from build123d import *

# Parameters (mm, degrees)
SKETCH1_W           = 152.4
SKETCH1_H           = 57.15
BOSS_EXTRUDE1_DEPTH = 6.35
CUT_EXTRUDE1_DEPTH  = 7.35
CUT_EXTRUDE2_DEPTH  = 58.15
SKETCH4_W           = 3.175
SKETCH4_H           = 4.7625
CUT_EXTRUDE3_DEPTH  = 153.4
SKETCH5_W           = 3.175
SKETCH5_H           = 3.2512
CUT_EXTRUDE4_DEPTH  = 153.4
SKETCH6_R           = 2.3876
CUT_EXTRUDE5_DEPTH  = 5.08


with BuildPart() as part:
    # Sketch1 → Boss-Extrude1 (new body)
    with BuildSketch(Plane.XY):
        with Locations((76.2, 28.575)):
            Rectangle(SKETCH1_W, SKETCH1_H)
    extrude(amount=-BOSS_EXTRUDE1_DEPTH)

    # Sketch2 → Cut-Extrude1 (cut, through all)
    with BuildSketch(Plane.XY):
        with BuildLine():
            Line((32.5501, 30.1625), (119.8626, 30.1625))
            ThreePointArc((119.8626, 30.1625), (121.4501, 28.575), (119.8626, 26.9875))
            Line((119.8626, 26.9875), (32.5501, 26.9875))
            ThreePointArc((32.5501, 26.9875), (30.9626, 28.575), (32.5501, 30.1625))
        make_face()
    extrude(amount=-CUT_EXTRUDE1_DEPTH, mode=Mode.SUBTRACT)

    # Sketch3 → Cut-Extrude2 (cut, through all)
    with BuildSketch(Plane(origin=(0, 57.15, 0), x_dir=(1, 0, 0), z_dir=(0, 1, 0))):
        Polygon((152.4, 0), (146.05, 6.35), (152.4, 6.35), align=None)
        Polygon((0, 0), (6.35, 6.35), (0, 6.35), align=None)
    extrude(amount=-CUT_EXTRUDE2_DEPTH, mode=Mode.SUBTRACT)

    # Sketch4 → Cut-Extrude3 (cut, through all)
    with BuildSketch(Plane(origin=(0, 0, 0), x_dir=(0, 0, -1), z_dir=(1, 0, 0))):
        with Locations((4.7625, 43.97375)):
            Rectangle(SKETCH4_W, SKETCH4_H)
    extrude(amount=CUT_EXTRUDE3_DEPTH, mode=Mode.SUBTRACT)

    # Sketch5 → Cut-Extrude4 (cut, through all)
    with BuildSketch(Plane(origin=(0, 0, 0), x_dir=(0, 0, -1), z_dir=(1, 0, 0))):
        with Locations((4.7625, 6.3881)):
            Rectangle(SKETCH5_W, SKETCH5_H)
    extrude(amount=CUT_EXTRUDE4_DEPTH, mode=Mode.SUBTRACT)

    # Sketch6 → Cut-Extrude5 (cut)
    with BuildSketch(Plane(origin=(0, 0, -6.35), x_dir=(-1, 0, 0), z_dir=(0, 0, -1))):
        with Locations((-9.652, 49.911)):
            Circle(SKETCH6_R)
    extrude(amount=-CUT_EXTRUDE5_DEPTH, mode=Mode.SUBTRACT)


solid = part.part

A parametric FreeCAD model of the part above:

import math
import FreeCAD as App
import Part
import Sketcher
Q = App.Units.Quantity


def add_polygon(sketch, points):
    """Adds a closed chain of lines whose ends are joined by coincident constraints."""
    first, n = sketch.GeometryCount, len(points)
    for a, b in zip(points, points[1:] + points[:1]):
        sketch.addGeometry(Part.LineSegment(App.Vector(*a, 0), App.Vector(*b, 0)), False)
    for i in range(n):
        sketch.addConstraint(Sketcher.Constraint("Coincident", first + i, 2, first + (i + 1) % n, 1))

doc = App.newDocument("Part")
body = doc.addObject("PartDesign::Body", "Body")

# Sketch on XY plane
sketch1 = body.newObject("Sketcher::SketchObject", "Sketch")
sketch1.AttachmentSupport = (doc.getObject("XY_Plane"), [""])
sketch1.MapMode = "FlatFace"
add_polygon(sketch1, [(0, 57.15), (0, 0), (152.4, 0), (152.4, 57.15)])  # lines 0-3
sketch1.addConstraint([
    Sketcher.Constraint("Vertical", 0),
    Sketcher.Constraint("Horizontal", 1),
    Sketcher.Constraint("Vertical", 2),
    Sketcher.Constraint("Horizontal", 3),
    Sketcher.Constraint("Coincident", 0, 2, -1, 1),
    Sketcher.Constraint("DistanceX", 1, 1, 1, 2, Q("6 in")),
    Sketcher.Constraint("DistanceY", 0, 2, 0, 1, Q("2.25 in")),
])
pad1 = body.newObject("PartDesign::Pad", "Pad")
pad1.Profile = sketch1
pad1.Length = Q("0.25 in")
pad1.Reversed = True

# Sketch on XY plane
sketch2 = body.newObject("Sketcher::SketchObject", "Sketch001")
sketch2.AttachmentSupport = (doc.getObject("XY_Plane"), [""])
sketch2.MapMode = "FlatFace"
sketch2.addGeometry([
    Part.LineSegment(App.Vector(119.8626, 30.1625, 0), App.Vector(32.5501, 30.1625, 0)),
    Part.ArcOfCircle(Part.Circle(App.Vector(32.5501, 28.575, 0), App.Vector(0, 0, 1), 1.5875), math.radians(90), math.radians(270)),
    Part.LineSegment(App.Vector(32.5501, 26.9875, 0), App.Vector(119.8626, 26.9875, 0)),
    Part.ArcOfCircle(Part.Circle(App.Vector(119.8626, 28.575, 0), App.Vector(0, 0, 1), 1.5875), math.radians(-90), math.radians(90)),
], False)
sketch2.addConstraint([
    Sketcher.Constraint("Tangent", 0, 2, 1, 1),
    Sketcher.Constraint("Tangent", 1, 2, 2, 1),
    Sketcher.Constraint("Tangent", 2, 2, 3, 1),
    Sketcher.Constraint("Tangent", 3, 2, 0, 1),
    Sketcher.Constraint("Horizontal", 0),
    Sketcher.Constraint("Horizontal", 2),
    Sketcher.Constraint("Radius", 1, Q("0.0625 in")),
    Sketcher.Constraint("DistanceX", 0, 2, 0, 1, Q("3.4375 in")),
    Sketcher.Constraint("DistanceY", -1, 1, 1, 3, Q("1.125 in")),
    Sketcher.Constraint("DistanceX", -1, 1, 3, 3, Q("4.719 in")),
])
pocket1 = body.newObject("PartDesign::Pocket", "Pocket")
pocket1.Profile = sketch2
pocket1.Type = "ThroughAll"

# Sketch on XZ plane
sketch3 = body.newObject("Sketcher::SketchObject", "Sketch002")
sketch3.AttachmentSupport = (doc.getObject("XZ_Plane"), [""])
sketch3.MapMode = "FlatFace"
sketch3.AttachmentOffset = App.Placement(App.Vector(0, 0, -2.25 * 25.4), App.Rotation())
add_polygon(sketch3, [(146.05, -6.35), (152.4, 0), (152.4, -6.35)])  # lines 0-2
add_polygon(sketch3, [(0, 0), (6.35, -6.35), (0, -6.35)])  # lines 3-5
sketch3.addConstraint([
    Sketcher.Constraint("Vertical", 1),
    Sketcher.Constraint("Horizontal", 2),
    Sketcher.Constraint("Horizontal", 4),
    Sketcher.Constraint("Vertical", 5),
    Sketcher.Constraint("Coincident", 5, 2, -1, 1),
    Sketcher.Constraint("PointOnObject", 0, 2, -1),
    Sketcher.Constraint("Perpendicular", 0, 3),
    Sketcher.Constraint("Horizontal", 2, 2, 3, 2),
    Sketcher.Constraint("Equal", 2, 4),
    Sketcher.Constraint("DistanceX", -1, 1, 0, 2, Q("6 in")),
    Sketcher.Constraint("DistanceX", 2, 2, 2, 1, Q("0.25 in")),
])
pocket2 = body.newObject("PartDesign::Pocket", "Pocket001")
pocket2.Profile = sketch3
pocket2.Type = "ThroughAll"
pocket2.Reversed = True

# Sketch on YZ plane
sketch4 = body.newObject("Sketcher::SketchObject", "Sketch003")
sketch4.AttachmentSupport = (doc.getObject("YZ_Plane"), [""])
sketch4.MapMode = "FlatFace"
add_polygon(sketch4, [(46.355, -3.175), (41.5925, -3.175), (41.5925, -6.35), (46.355, -6.35)])  # lines 0-3
sketch4.addConstraint([
    Sketcher.Constraint("Horizontal", 0),
    Sketcher.Constraint("Vertical", 1),
    Sketcher.Constraint("Horizontal", 2),
    Sketcher.Constraint("Vertical", 3),
    Sketcher.Constraint("DistanceX", 0, 2, 0, 1, Q("0.1875 in")),
    Sketcher.Constraint("DistanceY", 1, 2, 1, 1, Q("0.125 in")),
    Sketcher.Constraint("DistanceY", 1, 2, -1, 1, Q("0.25 in")),
    Sketcher.Constraint("DistanceX", -1, 1, 2, 2, Q("1.825 in")),
])
pocket3 = body.newObject("PartDesign::Pocket", "Pocket002")
pocket3.Profile = sketch4
pocket3.Type = "ThroughAll"
pocket3.Reversed = True

# Sketch on YZ plane
sketch5 = body.newObject("Sketcher::SketchObject", "Sketch004")
sketch5.AttachmentSupport = (doc.getObject("YZ_Plane"), [""])
sketch5.MapMode = "FlatFace"
add_polygon(sketch5, [(8.0137, -3.175), (4.7625, -3.175), (4.7625, -6.35), (8.0137, -6.35)])  # lines 0-3
sketch5.addConstraint([
    Sketcher.Constraint("Horizontal", 0),
    Sketcher.Constraint("Vertical", 1),
    Sketcher.Constraint("Horizontal", 2),
    Sketcher.Constraint("Vertical", 3),
    Sketcher.Constraint("DistanceX", 0, 2, 0, 1, Q("0.128 in")),
    Sketcher.Constraint("DistanceY", 1, 2, 1, 1, Q("0.125 in")),
    Sketcher.Constraint("DistanceY", 1, 2, -1, 1, Q("0.25 in")),
    Sketcher.Constraint("DistanceX", -1, 1, 0, 2, Q("0.1875 in")),
])
pocket4 = body.newObject("PartDesign::Pocket", "Pocket003")
pocket4.Profile = sketch5
pocket4.Type = "ThroughAll"
pocket4.Reversed = True

# Sketch on XY plane
sketch6 = body.newObject("Sketcher::SketchObject", "Sketch005")
sketch6.AttachmentSupport = (doc.getObject("XY_Plane"), [""])
sketch6.MapMode = "FlatFace"
sketch6.AttachmentOffset = App.Placement(App.Vector(0, 0, -0.25 * 25.4), App.Rotation())
sketch6.addGeometry(Part.Circle(App.Vector(9.652, 49.911, 0), App.Vector(0, 0, 1), 2.3876), False)
sketch6.addConstraint([
    Sketcher.Constraint("Diameter", 0, Q("0.188 in")),
    Sketcher.Constraint("DistanceX", -1, 1, 0, 3, Q("0.38 in")),
    Sketcher.Constraint("DistanceY", -1, 1, 0, 3, Q("1.965 in")),
])
pocket5 = body.newObject("PartDesign::Pocket", "Pocket004")
pocket5.Profile = sketch6
pocket5.Length = Q("0.2 in")
pocket5.Reversed = True

doc.recompute()
